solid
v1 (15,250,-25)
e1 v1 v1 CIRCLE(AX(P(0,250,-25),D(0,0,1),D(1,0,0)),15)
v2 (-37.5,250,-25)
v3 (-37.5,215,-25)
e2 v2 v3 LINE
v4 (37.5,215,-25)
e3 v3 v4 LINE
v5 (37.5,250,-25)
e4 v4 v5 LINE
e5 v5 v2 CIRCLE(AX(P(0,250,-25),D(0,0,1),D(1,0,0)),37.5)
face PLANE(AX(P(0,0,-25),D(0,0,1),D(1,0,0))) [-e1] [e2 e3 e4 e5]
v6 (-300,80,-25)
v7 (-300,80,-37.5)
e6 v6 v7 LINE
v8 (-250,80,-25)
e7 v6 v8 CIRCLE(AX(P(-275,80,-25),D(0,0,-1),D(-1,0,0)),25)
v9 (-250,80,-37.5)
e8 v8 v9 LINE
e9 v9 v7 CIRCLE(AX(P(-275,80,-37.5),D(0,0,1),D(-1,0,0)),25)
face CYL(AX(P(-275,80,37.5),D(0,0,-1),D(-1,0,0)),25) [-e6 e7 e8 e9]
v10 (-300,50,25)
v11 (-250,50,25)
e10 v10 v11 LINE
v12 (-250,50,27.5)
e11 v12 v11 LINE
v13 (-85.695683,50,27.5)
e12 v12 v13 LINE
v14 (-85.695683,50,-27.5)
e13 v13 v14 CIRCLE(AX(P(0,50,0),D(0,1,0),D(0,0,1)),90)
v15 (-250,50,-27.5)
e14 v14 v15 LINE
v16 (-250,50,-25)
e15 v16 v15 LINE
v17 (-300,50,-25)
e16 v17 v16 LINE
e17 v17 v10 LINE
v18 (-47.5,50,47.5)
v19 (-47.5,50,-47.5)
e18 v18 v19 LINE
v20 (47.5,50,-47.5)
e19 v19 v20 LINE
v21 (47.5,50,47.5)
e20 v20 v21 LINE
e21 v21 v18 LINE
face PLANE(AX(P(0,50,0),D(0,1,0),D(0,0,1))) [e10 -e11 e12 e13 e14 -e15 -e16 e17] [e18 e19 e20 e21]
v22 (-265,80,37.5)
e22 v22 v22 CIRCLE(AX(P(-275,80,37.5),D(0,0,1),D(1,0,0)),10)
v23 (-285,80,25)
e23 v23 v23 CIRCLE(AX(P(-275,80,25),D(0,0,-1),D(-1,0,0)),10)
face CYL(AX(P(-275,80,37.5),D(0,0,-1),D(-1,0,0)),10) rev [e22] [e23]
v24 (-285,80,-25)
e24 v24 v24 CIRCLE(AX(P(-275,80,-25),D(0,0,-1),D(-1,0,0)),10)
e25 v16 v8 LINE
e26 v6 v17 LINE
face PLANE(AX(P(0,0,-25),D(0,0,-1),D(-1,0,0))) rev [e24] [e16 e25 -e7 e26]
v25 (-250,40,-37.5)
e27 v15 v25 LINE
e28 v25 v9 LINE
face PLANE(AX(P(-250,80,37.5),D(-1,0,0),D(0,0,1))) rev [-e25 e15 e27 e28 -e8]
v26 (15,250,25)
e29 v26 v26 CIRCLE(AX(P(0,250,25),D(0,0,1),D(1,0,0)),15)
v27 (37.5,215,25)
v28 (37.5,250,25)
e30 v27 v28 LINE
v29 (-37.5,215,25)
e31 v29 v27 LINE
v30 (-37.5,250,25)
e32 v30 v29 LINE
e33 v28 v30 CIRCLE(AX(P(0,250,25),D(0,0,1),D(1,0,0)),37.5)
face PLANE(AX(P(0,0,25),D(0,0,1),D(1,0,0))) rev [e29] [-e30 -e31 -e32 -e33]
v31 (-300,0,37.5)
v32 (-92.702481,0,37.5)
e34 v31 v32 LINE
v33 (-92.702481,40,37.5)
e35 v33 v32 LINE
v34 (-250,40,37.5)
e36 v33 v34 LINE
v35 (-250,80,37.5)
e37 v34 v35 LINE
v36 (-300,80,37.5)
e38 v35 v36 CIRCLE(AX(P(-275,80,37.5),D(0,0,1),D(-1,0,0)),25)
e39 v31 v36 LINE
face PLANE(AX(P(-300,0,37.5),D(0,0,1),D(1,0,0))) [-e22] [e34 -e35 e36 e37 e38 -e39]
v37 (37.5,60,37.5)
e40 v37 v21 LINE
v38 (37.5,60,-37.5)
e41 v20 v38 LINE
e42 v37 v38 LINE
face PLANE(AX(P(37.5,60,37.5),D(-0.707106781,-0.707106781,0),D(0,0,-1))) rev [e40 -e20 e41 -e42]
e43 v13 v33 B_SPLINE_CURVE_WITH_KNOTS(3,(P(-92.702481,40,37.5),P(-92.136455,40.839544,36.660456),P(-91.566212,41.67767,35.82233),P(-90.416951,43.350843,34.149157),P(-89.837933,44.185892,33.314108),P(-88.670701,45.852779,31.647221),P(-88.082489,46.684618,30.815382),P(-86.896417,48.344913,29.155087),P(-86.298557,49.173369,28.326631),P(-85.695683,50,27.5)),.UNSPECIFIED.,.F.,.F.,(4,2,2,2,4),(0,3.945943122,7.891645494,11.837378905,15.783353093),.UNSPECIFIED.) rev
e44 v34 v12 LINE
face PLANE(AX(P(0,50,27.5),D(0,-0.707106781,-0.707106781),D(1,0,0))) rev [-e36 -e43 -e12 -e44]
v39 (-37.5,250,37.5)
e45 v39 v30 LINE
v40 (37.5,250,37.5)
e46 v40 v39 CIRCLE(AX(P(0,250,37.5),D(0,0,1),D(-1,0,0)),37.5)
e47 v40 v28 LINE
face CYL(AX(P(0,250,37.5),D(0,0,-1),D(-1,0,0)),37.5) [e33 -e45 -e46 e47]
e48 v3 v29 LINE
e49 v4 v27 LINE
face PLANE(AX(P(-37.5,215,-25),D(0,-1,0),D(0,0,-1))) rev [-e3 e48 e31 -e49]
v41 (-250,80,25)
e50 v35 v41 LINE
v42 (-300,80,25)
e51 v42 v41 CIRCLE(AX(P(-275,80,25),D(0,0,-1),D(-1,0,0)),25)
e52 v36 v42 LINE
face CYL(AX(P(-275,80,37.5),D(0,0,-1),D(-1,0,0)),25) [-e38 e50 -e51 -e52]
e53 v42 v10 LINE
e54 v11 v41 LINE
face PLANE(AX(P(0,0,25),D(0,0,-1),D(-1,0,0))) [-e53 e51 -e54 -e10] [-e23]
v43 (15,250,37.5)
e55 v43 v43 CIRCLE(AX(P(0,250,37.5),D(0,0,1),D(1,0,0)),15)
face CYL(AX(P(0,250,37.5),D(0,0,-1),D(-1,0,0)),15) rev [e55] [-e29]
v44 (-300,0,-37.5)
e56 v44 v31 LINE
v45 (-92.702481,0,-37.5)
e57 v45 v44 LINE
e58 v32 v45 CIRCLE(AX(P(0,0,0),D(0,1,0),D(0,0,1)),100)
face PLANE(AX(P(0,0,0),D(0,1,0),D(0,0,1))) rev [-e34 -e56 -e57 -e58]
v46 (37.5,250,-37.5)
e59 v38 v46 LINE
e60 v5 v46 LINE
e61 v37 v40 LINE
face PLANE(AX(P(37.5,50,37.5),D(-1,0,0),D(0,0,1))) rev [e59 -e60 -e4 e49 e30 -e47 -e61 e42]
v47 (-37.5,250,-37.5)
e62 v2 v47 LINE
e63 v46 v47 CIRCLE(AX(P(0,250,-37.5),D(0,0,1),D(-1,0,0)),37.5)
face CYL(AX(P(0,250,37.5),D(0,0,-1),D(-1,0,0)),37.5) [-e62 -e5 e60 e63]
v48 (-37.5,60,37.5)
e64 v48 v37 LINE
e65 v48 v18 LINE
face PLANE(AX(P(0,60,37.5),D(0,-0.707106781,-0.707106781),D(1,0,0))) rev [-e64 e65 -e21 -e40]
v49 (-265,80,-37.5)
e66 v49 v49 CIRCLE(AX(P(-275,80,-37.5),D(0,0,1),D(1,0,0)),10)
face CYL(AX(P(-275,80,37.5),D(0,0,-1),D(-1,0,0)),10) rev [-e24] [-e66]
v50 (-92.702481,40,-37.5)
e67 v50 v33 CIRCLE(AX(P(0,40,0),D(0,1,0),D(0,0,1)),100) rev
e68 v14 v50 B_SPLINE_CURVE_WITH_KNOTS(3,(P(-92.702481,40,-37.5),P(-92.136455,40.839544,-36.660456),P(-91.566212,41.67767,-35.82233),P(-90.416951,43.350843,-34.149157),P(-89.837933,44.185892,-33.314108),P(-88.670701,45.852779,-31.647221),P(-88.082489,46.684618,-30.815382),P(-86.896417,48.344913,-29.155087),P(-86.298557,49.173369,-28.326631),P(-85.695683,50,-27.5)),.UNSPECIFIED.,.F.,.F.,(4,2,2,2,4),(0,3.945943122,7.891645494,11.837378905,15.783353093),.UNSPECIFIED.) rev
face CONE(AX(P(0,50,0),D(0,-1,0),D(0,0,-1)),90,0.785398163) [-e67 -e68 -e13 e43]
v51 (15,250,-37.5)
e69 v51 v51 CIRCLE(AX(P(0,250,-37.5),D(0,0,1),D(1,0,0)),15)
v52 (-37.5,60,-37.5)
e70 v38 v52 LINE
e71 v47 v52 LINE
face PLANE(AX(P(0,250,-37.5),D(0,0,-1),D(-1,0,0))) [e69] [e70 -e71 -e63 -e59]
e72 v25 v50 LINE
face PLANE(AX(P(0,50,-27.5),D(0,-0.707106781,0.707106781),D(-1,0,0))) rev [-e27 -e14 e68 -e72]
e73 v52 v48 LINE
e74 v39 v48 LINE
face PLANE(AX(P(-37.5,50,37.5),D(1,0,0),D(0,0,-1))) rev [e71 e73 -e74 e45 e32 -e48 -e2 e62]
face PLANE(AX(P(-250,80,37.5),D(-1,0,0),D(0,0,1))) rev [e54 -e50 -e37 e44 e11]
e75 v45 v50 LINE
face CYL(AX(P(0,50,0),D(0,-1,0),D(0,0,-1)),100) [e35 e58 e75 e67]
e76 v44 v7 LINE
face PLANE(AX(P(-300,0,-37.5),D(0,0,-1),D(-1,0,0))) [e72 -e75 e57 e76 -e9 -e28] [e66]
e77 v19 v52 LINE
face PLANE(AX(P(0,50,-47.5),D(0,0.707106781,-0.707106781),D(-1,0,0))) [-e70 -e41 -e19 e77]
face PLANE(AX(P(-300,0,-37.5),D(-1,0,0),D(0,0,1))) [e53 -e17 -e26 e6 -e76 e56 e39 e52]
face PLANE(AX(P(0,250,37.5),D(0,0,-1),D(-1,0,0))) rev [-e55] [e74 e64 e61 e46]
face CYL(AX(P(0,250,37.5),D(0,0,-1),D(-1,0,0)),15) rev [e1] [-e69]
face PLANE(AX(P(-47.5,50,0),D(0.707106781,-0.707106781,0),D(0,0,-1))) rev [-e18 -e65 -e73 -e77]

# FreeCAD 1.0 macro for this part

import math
import FreeCAD as App
import Part
import Sketcher

V = App.Vector


def edges_at(feature, points):
    """Names of the edges that pass closest to the given points."""
    edges = feature.Shape.Edges
    near = lambda p: min(range(len(edges)), key=lambda i: edges[i].distToShape(Part.Vertex(*p))[0])
    return sorted({f"Edge{near(p) + 1}" for p in points})

doc = App.newDocument("Part")
body = doc.addObject("PartDesign::Body", "Body")

sketch1 = body.newObject("Sketcher::SketchObject", "Sketch")
sketch1.AttachmentSupport = (doc.getObject("XZ_Plane"), [""])
sketch1.MapMode = "FlatFace"
sketch1.addGeometry(Part.Circle(V(0, 0, 0), V(0, 0, 1), 100), False)
sketch1.addConstraint([
    Sketcher.Constraint("Coincident", 0, 3, -1, 1),
    Sketcher.Constraint("Diameter", 0, 200.0),
])
pad1 = body.newObject("PartDesign::Pad", "Pad")
pad1.Profile = sketch1
pad1.Length = 50
pad1.Reversed = True

sketch2 = body.newObject("Sketcher::SketchObject", "Sketch001")
sketch2.AttachmentSupport = (doc.getObject("XZ_Plane"), [""])
sketch2.MapMode = "FlatFace"
sketch2.AttachmentOffset = App.Placement(V(0, 0, -50), App.Rotation())
sketch2.addGeometry([
    Part.LineSegment(V(-300, -38, 0), V(-300, 38, 0)),
    Part.LineSegment(V(-300, 38, 0), V(0, 38, 0)),
    Part.LineSegment(V(0, 38, 0), V(0, -38, 0)),
    Part.LineSegment(V(0, -38, 0), V(-300, -38, 0)),
], False)
sketch2.addConstraint([
    Sketcher.Constraint("Coincident", 0, 2, 1, 1),
    Sketcher.Constraint("Coincident", 1, 2, 2, 1),
    Sketcher.Constraint("Coincident", 2, 2, 3, 1),
    Sketcher.Constraint("Coincident", 3, 2, 0, 1),
    Sketcher.Constraint("Vertical", 0),
    Sketcher.Constraint("Horizontal", 1),
    Sketcher.Constraint("Vertical", 2),
    Sketcher.Constraint("Horizontal", 3),
    Sketcher.Constraint("Symmetric", 1, 2, 2, 2, -1, 1),
    Sketcher.Constraint("DistanceX", 1, 1, 1, 2, 300.0),
    Sketcher.Constraint("DistanceY", 0, 1, 0, 2, 75.0),
])
pad2 = body.newObject("PartDesign::Pad", "Pad001")
pad2.Profile = sketch2
pad2.Length = 50

sketch3 = body.newObject("Sketcher::SketchObject", "Sketch002")
sketch3.AttachmentSupport = (doc.getObject("XY_Plane"), [""])
sketch3.MapMode = "FlatFace"
sketch3.addGeometry([
    Part.LineSegment(V(-300, 80, 0), V(-300, 50, 0)),
    Part.LineSegment(V(-300, 50, 0), V(-250, 50, 0)),
    Part.LineSegment(V(-250, 50, 0), V(-250, 80, 0)),
    Part.ArcOfCircle(Part.Circle(V(-275, 80, 0), V(0, 0, 1), 25), math.radians(0), math.radians(180)),
    Part.Circle(V(-275, 80, 0), V(0, 0, 1), 10),
    Part.LineSegment(V(-38, 50, 0), V(38, 50, 0)),
    Part.LineSegment(V(38, 50, 0), V(38, 250, 0)),
    Part.ArcOfCircle(Part.Circle(V(0, 250, 0), V(0, 0, 1), 38), math.radians(0), math.radians(180)),
    Part.LineSegment(V(-38, 250, 0), V(-38, 50, 0)),
    Part.Circle(V(0, 250, 0), V(0, 0, 1), 15),
], False)
sketch3.addConstraint([
    Sketcher.Constraint("Coincident", 0, 2, 1, 1),
    Sketcher.Constraint("Coincident", 1, 2, 2, 1),
    Sketcher.Constraint("Tangent", 2, 2, 3, 1),
    Sketcher.Constraint("Tangent", 3, 2, 0, 1),
    Sketcher.Constraint("Coincident", 5, 2, 6, 1),
    Sketcher.Constraint("Tangent", 6, 2, 7, 1),
    Sketcher.Constraint("Tangent", 7, 2, 8, 1),
    Sketcher.Constraint("Coincident", 8, 2, 5, 1),
    Sketcher.Constraint("Vertical", 0),
    Sketcher.Constraint("Horizontal", 1),
    Sketcher.Constraint("Vertical", 2),
    Sketcher.Constraint("Horizontal", 5),
    Sketcher.Constraint("Vertical", 6),
    Sketcher.Constraint("Vertical", 8),
    Sketcher.Constraint("Coincident", 4, 3, 3, 3),
    Sketcher.Constraint("Coincident", 9, 3, 7, 3),
    Sketcher.Constraint("PointOnObject", 7, 3, -2),
    Sketcher.Constraint("Horizontal", 1, 2, 5, 2),
    Sketcher.Constraint("Diameter", 4, 20.0),
    Sketcher.Constraint("Diameter", 9, 30.0),
    Sketcher.Constraint("Radius", 3, 25.0),
    Sketcher.Constraint("Radius", 7, 37.5),
    Sketcher.Constraint("DistanceY", 0, 2, 0, 1, 30.0),
    Sketcher.Constraint("DistanceY", 6, 1, 6, 2, 200.0),
    Sketcher.Constraint("DistanceX", 3, 3, -1, 1, 275.0),
    Sketcher.Constraint("DistanceY", -1, 1, 3, 3, 80.0),
])
pad3 = body.newObject("PartDesign::Pad", "Pad002")
pad3.Profile = sketch3
pad3.Length = 75
pad3.Midplane = True

sketch4 = body.newObject("Sketcher::SketchObject", "Sketch003")
sketch4.AttachmentSupport = (doc.getObject("XY_Plane"), [""])
sketch4.MapMode = "FlatFace"
sketch4.addGeometry([
    Part.LineSegment(V(-38, 288, 0), V(-38, 215, 0)),
    Part.LineSegment(V(-38, 215, 0), V(38, 215, 0)),
    Part.LineSegment(V(38, 215, 0), V(38, 288, 0)),
    Part.LineSegment(V(38, 288, 0), V(-38, 288, 0)),
    Part.LineSegment(V(-300, 105, 0), V(-300, 50, 0)),
    Part.LineSegment(V(-300, 50, 0), V(-250, 50, 0)),
    Part.LineSegment(V(-250, 50, 0), V(-250, 105, 0)),
    Part.LineSegment(V(-250, 105, 0), V(-300, 105, 0)),
], False)
sketch4.addConstraint([
    Sketcher.Constraint("Coincident", 0, 2, 1, 1),
    Sketcher.Constraint("Coincident", 1, 2, 2, 1),
    Sketcher.Constraint("Coincident", 2, 2, 3, 1),
    Sketcher.Constraint("Coincident", 3, 2, 0, 1),
    Sketcher.Constraint("Coincident", 4, 2, 5, 1),
    Sketcher.Constraint("Coincident", 5, 2, 6, 1),
    Sketcher.Constraint("Coincident", 6, 2, 7, 1),
    Sketcher.Constraint("Coincident", 7, 2, 4, 1),
    Sketcher.Constraint("Vertical", 0),
    Sketcher.Constraint("Horizontal", 1),
    Sketcher.Constraint("Vertical", 2),
    Sketcher.Constraint("Horizontal", 3),
    Sketcher.Constraint("Vertical", 4),
    Sketcher.Constraint("Horizontal", 5),
    Sketcher.Constraint("Vertical", 6),
    Sketcher.Constraint("Horizontal", 7),
    Sketcher.Constraint("DistanceX", 1, 1, 1, 2, 75.0),
    Sketcher.Constraint("DistanceX", 5, 1, 5, 2, 50.0),
    Sketcher.Constraint("DistanceY", 4, 2, 4, 1, 55.0),
    Sketcher.Constraint("DistanceY", 0, 2, 0, 1, 72.5),
    Sketcher.Constraint("DistanceY", -1, 1, 0, 2, 215.0),
    Sketcher.Constraint("DistanceX", 4, 2, -1, 1, 300.0),
    Sketcher.Constraint("DistanceY", -1, 1, 4, 2, 50.0),
    Sketcher.Constraint("DistanceX", 0, 2, -1, 1, 37.5),
])
pocket1 = body.newObject("PartDesign::Pocket", "Pocket")
pocket1.Profile = sketch4
pocket1.Length = 50
pocket1.Midplane = True
doc.recompute()

chamfer = body.newObject("PartDesign::Chamfer", "Chamfer")
chamfer.Base = (pocket1, edges_at(pocket1, [(-171.351, 50, -37.5), (100, 50, 0), (-171.351, 50, 37.5)]))
chamfer.Size = 10
doc.recompute()

chamfer2 = body.newObject("PartDesign::Chamfer", "Chamfer001")
chamfer2.Base = (chamfer, edges_at(chamfer, [
    (0, 50, 37.5),
    (0, 50, -37.5),
    (-37.5, 50, 0),
    (37.5, 50, 0),
]))
chamfer2.Size = 10

doc.recompute()
